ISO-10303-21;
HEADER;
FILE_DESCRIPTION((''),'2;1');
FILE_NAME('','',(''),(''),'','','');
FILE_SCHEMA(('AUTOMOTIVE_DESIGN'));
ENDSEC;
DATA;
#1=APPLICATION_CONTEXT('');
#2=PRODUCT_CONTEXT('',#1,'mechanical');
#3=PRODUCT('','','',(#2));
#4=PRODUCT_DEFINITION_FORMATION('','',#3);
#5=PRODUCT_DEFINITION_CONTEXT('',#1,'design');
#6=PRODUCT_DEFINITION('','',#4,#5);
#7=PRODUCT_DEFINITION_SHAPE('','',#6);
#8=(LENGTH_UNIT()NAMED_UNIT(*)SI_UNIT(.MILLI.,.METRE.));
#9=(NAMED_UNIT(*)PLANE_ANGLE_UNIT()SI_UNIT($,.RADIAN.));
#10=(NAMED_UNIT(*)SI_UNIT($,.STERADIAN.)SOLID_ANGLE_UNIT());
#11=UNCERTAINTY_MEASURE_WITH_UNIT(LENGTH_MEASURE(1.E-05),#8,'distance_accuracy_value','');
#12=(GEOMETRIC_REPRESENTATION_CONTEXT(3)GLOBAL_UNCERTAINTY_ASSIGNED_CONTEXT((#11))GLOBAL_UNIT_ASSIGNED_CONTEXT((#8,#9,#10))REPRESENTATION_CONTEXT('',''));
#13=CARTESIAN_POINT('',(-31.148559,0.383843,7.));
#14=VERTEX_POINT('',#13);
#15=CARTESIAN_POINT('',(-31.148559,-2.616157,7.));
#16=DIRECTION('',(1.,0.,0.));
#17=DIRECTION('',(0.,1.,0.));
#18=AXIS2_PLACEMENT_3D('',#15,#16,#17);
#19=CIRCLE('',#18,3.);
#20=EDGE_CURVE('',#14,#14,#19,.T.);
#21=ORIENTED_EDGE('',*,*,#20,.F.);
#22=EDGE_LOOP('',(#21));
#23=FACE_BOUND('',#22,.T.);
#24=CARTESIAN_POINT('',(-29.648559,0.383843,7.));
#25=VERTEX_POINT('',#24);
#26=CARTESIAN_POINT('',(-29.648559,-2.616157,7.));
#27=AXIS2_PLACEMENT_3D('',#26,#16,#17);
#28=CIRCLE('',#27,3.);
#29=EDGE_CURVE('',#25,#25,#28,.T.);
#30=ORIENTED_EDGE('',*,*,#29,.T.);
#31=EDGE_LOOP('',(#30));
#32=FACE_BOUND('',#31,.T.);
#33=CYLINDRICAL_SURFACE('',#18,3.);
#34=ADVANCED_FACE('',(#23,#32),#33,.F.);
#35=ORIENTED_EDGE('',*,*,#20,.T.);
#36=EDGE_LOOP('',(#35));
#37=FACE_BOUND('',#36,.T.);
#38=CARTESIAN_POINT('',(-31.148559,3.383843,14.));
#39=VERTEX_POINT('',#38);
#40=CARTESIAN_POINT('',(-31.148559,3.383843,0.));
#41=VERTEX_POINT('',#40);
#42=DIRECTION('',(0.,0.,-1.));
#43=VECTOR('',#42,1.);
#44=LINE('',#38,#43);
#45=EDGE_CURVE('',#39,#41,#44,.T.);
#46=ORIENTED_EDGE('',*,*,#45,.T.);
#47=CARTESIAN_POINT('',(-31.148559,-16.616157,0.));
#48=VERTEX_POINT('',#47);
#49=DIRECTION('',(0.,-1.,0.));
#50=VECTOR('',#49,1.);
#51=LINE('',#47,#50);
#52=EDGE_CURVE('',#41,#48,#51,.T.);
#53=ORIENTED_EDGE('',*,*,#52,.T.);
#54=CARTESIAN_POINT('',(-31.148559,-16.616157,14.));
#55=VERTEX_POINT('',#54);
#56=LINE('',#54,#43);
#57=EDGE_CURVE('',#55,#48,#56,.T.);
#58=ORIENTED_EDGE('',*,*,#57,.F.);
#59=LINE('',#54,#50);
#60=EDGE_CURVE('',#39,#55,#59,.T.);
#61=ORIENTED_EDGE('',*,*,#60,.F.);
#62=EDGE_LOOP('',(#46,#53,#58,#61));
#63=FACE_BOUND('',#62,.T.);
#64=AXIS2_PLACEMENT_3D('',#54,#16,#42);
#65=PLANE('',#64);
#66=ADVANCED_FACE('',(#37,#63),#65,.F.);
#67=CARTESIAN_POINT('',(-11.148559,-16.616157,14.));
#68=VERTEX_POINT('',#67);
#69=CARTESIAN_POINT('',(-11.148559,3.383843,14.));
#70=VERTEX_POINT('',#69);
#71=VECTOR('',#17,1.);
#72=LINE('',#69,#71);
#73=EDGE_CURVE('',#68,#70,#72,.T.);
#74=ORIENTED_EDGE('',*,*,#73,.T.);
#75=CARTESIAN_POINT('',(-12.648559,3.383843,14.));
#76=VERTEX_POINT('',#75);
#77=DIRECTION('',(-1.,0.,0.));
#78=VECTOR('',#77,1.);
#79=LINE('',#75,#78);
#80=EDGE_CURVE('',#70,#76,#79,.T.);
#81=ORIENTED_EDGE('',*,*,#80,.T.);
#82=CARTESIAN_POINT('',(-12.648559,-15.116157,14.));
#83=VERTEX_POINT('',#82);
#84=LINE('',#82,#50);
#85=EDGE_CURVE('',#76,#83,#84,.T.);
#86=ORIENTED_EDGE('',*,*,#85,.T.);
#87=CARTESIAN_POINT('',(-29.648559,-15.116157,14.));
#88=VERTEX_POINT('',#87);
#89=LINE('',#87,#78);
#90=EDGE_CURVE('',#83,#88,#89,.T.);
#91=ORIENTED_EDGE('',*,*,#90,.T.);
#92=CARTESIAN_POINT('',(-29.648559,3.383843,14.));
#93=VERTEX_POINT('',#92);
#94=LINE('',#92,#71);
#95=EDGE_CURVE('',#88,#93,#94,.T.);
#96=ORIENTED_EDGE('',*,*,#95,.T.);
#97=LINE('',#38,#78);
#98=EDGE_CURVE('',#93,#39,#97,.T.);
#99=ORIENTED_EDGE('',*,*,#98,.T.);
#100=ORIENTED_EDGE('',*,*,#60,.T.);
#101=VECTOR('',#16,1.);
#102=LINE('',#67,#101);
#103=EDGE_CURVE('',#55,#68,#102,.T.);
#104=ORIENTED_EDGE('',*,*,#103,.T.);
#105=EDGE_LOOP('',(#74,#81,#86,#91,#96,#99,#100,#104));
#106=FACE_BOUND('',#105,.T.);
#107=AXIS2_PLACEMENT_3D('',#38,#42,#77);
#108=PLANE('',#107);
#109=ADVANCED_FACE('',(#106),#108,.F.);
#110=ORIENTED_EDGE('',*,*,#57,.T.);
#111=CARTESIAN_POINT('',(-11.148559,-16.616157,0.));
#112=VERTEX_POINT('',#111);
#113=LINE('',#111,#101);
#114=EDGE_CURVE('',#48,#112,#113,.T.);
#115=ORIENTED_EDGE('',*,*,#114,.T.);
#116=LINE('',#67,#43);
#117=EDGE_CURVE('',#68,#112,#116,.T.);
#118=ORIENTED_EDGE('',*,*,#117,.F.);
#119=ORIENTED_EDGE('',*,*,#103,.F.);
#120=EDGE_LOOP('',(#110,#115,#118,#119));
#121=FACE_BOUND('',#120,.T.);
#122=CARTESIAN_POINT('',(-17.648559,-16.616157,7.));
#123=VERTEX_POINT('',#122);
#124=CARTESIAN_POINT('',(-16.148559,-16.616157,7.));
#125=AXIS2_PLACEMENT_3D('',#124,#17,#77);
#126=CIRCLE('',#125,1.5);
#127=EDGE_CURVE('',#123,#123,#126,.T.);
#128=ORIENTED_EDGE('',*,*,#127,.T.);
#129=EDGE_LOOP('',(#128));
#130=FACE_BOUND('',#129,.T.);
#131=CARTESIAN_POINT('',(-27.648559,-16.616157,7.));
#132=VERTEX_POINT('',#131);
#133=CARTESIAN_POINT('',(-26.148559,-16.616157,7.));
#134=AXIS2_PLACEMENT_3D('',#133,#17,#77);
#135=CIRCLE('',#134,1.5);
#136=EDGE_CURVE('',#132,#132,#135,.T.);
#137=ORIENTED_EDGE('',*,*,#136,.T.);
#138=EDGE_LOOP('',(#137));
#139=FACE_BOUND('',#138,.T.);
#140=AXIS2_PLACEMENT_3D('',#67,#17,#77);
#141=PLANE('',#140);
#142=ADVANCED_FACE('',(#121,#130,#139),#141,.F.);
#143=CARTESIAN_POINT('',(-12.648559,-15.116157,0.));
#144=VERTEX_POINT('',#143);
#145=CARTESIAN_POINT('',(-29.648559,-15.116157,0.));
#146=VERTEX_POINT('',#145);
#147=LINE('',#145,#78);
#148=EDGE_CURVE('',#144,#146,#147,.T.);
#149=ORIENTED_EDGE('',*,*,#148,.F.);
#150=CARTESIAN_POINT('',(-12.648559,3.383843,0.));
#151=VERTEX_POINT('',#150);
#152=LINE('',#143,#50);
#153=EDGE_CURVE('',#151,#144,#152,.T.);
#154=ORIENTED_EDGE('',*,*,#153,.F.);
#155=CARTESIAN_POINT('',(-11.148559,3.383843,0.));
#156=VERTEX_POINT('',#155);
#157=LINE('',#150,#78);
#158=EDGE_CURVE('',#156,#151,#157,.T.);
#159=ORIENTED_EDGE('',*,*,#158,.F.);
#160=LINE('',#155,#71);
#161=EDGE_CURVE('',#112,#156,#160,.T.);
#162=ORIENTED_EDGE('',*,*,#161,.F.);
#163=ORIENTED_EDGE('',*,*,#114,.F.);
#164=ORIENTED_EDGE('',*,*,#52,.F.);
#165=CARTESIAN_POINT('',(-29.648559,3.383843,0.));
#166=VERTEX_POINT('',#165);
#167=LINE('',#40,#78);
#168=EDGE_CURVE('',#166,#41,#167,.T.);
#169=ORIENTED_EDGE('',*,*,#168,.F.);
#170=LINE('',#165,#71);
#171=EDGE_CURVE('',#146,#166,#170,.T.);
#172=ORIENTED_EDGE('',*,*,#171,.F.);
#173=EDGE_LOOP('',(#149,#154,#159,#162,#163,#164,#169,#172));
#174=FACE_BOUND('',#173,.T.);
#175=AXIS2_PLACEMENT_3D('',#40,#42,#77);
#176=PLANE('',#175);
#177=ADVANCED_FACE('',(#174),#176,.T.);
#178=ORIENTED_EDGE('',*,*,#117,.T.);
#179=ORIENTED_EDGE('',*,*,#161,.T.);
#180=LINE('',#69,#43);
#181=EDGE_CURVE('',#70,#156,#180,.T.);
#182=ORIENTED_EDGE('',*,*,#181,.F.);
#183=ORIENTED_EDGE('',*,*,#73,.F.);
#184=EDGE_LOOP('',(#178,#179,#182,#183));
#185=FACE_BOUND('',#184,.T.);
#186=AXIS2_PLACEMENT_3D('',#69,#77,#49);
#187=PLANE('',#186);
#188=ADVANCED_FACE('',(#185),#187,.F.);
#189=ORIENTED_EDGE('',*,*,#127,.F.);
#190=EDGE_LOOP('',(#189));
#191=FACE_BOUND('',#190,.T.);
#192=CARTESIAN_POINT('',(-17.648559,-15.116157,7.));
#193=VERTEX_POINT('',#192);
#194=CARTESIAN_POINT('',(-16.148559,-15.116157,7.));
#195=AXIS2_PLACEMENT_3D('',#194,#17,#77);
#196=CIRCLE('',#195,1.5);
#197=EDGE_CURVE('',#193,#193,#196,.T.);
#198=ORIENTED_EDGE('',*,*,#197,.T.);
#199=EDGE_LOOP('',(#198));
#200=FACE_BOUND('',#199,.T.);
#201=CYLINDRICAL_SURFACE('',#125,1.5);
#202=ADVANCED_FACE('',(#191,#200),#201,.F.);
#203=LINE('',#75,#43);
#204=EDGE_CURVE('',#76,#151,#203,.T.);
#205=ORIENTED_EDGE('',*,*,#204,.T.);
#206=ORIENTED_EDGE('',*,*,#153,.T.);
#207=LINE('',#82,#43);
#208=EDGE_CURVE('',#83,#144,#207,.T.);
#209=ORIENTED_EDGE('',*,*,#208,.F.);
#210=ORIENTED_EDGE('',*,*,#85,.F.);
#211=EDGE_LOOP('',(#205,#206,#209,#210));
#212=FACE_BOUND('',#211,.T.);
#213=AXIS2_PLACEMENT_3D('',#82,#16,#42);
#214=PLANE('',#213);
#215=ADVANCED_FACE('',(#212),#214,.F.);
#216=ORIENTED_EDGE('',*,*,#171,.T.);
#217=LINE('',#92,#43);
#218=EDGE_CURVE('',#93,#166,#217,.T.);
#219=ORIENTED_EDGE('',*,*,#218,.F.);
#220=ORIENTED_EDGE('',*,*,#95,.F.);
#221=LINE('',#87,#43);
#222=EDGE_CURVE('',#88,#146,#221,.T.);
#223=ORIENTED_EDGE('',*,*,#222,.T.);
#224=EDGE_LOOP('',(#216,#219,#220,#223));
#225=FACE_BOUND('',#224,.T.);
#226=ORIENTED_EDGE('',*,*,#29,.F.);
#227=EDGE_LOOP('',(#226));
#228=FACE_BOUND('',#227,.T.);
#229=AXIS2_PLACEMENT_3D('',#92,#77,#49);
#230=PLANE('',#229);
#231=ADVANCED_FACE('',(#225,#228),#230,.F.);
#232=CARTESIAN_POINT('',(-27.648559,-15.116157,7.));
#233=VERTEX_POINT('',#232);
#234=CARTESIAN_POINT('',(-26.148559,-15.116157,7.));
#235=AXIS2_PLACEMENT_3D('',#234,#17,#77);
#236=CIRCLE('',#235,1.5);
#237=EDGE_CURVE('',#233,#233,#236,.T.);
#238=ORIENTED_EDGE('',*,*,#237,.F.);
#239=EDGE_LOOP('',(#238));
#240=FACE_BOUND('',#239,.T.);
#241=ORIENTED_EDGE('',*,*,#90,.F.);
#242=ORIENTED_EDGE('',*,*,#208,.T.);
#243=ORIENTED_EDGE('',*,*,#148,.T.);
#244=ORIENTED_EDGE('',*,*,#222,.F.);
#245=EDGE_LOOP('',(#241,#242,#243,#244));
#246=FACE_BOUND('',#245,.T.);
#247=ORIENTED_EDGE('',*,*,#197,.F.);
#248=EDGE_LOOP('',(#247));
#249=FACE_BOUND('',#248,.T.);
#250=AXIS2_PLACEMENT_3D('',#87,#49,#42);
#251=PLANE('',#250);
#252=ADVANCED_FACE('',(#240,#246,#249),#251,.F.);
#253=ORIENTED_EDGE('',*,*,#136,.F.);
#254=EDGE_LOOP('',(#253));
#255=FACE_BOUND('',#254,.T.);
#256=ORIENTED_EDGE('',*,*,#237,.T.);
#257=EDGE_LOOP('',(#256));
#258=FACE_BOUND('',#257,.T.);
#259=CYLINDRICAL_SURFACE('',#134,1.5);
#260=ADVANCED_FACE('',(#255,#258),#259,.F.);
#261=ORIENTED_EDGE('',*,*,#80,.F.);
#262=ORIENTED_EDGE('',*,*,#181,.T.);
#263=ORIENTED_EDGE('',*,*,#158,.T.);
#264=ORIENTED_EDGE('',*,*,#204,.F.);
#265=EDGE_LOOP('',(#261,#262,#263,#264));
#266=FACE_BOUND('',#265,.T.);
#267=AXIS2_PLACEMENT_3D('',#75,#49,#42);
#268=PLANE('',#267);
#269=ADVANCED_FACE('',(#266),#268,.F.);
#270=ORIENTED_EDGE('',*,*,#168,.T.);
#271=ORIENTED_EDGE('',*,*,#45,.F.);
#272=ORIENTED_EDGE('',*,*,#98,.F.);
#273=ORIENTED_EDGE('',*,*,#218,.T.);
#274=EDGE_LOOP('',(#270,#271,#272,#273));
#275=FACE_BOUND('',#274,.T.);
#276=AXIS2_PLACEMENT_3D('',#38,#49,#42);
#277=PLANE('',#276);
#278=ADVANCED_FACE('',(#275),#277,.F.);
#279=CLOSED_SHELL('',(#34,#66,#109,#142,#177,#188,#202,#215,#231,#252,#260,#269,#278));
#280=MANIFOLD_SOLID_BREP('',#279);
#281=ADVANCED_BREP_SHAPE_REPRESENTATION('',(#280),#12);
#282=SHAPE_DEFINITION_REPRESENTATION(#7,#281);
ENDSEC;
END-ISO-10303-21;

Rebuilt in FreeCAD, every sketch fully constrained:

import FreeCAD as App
import Part
import Sketcher
from FreeCAD import Vector


def add_polygon(sketch, points):
    """Adds a closed chain of lines whose ends are joined by coincident constraints."""
    first, n = sketch.GeometryCount, len(points)
    for a, b in zip(points, points[1:] + points[:1]):
        sketch.addGeometry(Part.LineSegment(App.Vector(*a, 0), App.Vector(*b, 0)), False)
    for i in range(n):
        sketch.addConstraint(Sketcher.Constraint("Coincident", first + i, 2, first + (i + 1) % n, 1))

doc = App.newDocument("Part")
params = doc.addObject("Spreadsheet::Sheet", "Params")
for row, (alias, value) in enumerate([
    ("sketch1_width", "20 mm"),
    ("sketch1_width2", "17 mm"),
    ("sketch1_height", "18.5 mm"),
    ("pad1_length", "14 mm"),
    ("sketch2_diameter", "3 mm"),
    ("sketch3_diameter", "6 mm"),
], start=1):
    params.set(f"A{row}", alias)
    params.set(f"B{row}", "=" + value)
    params.setAlias(f"B{row}", alias)

body = doc.addObject("PartDesign::Body", "Body")

# Sketch on XY plane
sketch1 = doc.addObject("Sketcher::SketchObject", "Sketch")
body.addObject(sketch1)
sketch1.AttachmentSupport = (doc.XY_Plane, [""])
sketch1.MapMode = "FlatFace"
add_polygon(sketch1, [(-29.6, 3.4), (-31.1, 3.4), (-31.1, -16.6), (-11.1, -16.6), (-11.1, 3.4), (-12.6, 3.4), (-12.6, -15.1), (-29.6, -15.1)])  # lines 0-7
sketch1.addConstraint(Sketcher.Constraint("Horizontal", 0))
sketch1.addConstraint(Sketcher.Constraint("Vertical", 1))
sketch1.addConstraint(Sketcher.Constraint("Horizontal", 2))
sketch1.addConstraint(Sketcher.Constraint("Vertical", 3))
sketch1.addConstraint(Sketcher.Constraint("Horizontal", 4))
sketch1.addConstraint(Sketcher.Constraint("Vertical", 5))
sketch1.addConstraint(Sketcher.Constraint("Horizontal", 6))
sketch1.addConstraint(Sketcher.Constraint("Vertical", 7))
sketch1.addConstraint(Sketcher.Constraint("Horizontal", 0, 2, 3, 2))
sketch1.addConstraint(Sketcher.Constraint("Equal", 0, 4))
sketch1.addConstraint(Sketcher.Constraint("Equal", 2, 1))
sketch1.addConstraint(Sketcher.Constraint("DistanceX", 2, 1, 2, 2, 20.0))
sketch1.addConstraint(Sketcher.Constraint("DistanceX", 6, 2, 6, 1, 17.0))
sketch1.addConstraint(Sketcher.Constraint("DistanceY", 5, 2, 5, 1, 18.5))
sketch1.addConstraint(Sketcher.Constraint("DistanceX", 0, 2, -1, 1, 31.148559))
sketch1.addConstraint(Sketcher.Constraint("DistanceY", -1, 1, 0, 2, 3.383843))
sketch1.setExpression("Constraints[19]", "Params.sketch1_width")
sketch1.setExpression("Constraints[20]", "Params.sketch1_width2")
sketch1.setExpression("Constraints[21]", "Params.sketch1_height")
pad1 = doc.addObject("PartDesign::Pad", "Pad")
body.addObject(pad1)
pad1.Profile = sketch1
pad1.setExpression("Length", "Params.pad1_length")

# Sketch on XZ plane
sketch2 = doc.addObject("Sketcher::SketchObject", "Sketch001")
body.addObject(sketch2)
sketch2.AttachmentSupport = (doc.XZ_Plane, [""])
sketch2.MapMode = "FlatFace"
sketch2.AttachmentOffset = App.Placement(Vector(0, 0, 15.116157), App.Rotation())
sketch2.addGeometry(Part.Circle(Vector(-26.1, 7, 0), Vector(0, 0, 1), 1.5), False)
sketch2.addGeometry(Part.Circle(Vector(-16.1, 7, 0), Vector(0, 0, 1), 1.5), False)
sketch2.addConstraint(Sketcher.Constraint("Equal", 0, 1))
sketch2.addConstraint(Sketcher.Constraint("Horizontal", 0, 3, 1, 3))
sketch2.addConstraint(Sketcher.Constraint("Diameter", 0, 3.0))
sketch2.addConstraint(Sketcher.Constraint("DistanceY", -1, 1, 0, 3, 7.0))
sketch2.addConstraint(Sketcher.Constraint("DistanceX", 0, 3, 1, 3, 10.0))
sketch2.addConstraint(Sketcher.Constraint("DistanceX", 0, 3, -1, 1, 26.148559))
sketch2.setExpression("Constraints[2]", "Params.sketch2_diameter")
pocket1 = doc.addObject("PartDesign::Pocket", "Pocket")
body.addObject(pocket1)
pocket1.Profile = sketch2
pocket1.Type = "ThroughAll"
pocket1.Reversed = True

# Sketch on YZ plane
sketch3 = doc.addObject("Sketcher::SketchObject", "Sketch002")
body.addObject(sketch3)
sketch3.AttachmentSupport = (doc.YZ_Plane, [""])
sketch3.MapMode = "FlatFace"
sketch3.AttachmentOffset = App.Placement(Vector(0, 0, -29.648559), App.Rotation())
sketch3.addGeometry(Part.Circle(Vector(-2.6, 7, 0), Vector(0, 0, 1), 3), False)
sketch3.addConstraint(Sketcher.Constraint("Diameter", 0, 6.0))
sketch3.addConstraint(Sketcher.Constraint("DistanceY", -1, 1, 0, 3, 7.0))
sketch3.addConstraint(Sketcher.Constraint("DistanceX", 0, 3, -1, 1, 2.616157))
sketch3.setExpression("Constraints[0]", "Params.sketch3_diameter")
pocket2 = doc.addObject("PartDesign::Pocket", "Pocket001")
body.addObject(pocket2)
pocket2.Profile = sketch3
pocket2.Type = "ThroughAll"

doc.recompute()
